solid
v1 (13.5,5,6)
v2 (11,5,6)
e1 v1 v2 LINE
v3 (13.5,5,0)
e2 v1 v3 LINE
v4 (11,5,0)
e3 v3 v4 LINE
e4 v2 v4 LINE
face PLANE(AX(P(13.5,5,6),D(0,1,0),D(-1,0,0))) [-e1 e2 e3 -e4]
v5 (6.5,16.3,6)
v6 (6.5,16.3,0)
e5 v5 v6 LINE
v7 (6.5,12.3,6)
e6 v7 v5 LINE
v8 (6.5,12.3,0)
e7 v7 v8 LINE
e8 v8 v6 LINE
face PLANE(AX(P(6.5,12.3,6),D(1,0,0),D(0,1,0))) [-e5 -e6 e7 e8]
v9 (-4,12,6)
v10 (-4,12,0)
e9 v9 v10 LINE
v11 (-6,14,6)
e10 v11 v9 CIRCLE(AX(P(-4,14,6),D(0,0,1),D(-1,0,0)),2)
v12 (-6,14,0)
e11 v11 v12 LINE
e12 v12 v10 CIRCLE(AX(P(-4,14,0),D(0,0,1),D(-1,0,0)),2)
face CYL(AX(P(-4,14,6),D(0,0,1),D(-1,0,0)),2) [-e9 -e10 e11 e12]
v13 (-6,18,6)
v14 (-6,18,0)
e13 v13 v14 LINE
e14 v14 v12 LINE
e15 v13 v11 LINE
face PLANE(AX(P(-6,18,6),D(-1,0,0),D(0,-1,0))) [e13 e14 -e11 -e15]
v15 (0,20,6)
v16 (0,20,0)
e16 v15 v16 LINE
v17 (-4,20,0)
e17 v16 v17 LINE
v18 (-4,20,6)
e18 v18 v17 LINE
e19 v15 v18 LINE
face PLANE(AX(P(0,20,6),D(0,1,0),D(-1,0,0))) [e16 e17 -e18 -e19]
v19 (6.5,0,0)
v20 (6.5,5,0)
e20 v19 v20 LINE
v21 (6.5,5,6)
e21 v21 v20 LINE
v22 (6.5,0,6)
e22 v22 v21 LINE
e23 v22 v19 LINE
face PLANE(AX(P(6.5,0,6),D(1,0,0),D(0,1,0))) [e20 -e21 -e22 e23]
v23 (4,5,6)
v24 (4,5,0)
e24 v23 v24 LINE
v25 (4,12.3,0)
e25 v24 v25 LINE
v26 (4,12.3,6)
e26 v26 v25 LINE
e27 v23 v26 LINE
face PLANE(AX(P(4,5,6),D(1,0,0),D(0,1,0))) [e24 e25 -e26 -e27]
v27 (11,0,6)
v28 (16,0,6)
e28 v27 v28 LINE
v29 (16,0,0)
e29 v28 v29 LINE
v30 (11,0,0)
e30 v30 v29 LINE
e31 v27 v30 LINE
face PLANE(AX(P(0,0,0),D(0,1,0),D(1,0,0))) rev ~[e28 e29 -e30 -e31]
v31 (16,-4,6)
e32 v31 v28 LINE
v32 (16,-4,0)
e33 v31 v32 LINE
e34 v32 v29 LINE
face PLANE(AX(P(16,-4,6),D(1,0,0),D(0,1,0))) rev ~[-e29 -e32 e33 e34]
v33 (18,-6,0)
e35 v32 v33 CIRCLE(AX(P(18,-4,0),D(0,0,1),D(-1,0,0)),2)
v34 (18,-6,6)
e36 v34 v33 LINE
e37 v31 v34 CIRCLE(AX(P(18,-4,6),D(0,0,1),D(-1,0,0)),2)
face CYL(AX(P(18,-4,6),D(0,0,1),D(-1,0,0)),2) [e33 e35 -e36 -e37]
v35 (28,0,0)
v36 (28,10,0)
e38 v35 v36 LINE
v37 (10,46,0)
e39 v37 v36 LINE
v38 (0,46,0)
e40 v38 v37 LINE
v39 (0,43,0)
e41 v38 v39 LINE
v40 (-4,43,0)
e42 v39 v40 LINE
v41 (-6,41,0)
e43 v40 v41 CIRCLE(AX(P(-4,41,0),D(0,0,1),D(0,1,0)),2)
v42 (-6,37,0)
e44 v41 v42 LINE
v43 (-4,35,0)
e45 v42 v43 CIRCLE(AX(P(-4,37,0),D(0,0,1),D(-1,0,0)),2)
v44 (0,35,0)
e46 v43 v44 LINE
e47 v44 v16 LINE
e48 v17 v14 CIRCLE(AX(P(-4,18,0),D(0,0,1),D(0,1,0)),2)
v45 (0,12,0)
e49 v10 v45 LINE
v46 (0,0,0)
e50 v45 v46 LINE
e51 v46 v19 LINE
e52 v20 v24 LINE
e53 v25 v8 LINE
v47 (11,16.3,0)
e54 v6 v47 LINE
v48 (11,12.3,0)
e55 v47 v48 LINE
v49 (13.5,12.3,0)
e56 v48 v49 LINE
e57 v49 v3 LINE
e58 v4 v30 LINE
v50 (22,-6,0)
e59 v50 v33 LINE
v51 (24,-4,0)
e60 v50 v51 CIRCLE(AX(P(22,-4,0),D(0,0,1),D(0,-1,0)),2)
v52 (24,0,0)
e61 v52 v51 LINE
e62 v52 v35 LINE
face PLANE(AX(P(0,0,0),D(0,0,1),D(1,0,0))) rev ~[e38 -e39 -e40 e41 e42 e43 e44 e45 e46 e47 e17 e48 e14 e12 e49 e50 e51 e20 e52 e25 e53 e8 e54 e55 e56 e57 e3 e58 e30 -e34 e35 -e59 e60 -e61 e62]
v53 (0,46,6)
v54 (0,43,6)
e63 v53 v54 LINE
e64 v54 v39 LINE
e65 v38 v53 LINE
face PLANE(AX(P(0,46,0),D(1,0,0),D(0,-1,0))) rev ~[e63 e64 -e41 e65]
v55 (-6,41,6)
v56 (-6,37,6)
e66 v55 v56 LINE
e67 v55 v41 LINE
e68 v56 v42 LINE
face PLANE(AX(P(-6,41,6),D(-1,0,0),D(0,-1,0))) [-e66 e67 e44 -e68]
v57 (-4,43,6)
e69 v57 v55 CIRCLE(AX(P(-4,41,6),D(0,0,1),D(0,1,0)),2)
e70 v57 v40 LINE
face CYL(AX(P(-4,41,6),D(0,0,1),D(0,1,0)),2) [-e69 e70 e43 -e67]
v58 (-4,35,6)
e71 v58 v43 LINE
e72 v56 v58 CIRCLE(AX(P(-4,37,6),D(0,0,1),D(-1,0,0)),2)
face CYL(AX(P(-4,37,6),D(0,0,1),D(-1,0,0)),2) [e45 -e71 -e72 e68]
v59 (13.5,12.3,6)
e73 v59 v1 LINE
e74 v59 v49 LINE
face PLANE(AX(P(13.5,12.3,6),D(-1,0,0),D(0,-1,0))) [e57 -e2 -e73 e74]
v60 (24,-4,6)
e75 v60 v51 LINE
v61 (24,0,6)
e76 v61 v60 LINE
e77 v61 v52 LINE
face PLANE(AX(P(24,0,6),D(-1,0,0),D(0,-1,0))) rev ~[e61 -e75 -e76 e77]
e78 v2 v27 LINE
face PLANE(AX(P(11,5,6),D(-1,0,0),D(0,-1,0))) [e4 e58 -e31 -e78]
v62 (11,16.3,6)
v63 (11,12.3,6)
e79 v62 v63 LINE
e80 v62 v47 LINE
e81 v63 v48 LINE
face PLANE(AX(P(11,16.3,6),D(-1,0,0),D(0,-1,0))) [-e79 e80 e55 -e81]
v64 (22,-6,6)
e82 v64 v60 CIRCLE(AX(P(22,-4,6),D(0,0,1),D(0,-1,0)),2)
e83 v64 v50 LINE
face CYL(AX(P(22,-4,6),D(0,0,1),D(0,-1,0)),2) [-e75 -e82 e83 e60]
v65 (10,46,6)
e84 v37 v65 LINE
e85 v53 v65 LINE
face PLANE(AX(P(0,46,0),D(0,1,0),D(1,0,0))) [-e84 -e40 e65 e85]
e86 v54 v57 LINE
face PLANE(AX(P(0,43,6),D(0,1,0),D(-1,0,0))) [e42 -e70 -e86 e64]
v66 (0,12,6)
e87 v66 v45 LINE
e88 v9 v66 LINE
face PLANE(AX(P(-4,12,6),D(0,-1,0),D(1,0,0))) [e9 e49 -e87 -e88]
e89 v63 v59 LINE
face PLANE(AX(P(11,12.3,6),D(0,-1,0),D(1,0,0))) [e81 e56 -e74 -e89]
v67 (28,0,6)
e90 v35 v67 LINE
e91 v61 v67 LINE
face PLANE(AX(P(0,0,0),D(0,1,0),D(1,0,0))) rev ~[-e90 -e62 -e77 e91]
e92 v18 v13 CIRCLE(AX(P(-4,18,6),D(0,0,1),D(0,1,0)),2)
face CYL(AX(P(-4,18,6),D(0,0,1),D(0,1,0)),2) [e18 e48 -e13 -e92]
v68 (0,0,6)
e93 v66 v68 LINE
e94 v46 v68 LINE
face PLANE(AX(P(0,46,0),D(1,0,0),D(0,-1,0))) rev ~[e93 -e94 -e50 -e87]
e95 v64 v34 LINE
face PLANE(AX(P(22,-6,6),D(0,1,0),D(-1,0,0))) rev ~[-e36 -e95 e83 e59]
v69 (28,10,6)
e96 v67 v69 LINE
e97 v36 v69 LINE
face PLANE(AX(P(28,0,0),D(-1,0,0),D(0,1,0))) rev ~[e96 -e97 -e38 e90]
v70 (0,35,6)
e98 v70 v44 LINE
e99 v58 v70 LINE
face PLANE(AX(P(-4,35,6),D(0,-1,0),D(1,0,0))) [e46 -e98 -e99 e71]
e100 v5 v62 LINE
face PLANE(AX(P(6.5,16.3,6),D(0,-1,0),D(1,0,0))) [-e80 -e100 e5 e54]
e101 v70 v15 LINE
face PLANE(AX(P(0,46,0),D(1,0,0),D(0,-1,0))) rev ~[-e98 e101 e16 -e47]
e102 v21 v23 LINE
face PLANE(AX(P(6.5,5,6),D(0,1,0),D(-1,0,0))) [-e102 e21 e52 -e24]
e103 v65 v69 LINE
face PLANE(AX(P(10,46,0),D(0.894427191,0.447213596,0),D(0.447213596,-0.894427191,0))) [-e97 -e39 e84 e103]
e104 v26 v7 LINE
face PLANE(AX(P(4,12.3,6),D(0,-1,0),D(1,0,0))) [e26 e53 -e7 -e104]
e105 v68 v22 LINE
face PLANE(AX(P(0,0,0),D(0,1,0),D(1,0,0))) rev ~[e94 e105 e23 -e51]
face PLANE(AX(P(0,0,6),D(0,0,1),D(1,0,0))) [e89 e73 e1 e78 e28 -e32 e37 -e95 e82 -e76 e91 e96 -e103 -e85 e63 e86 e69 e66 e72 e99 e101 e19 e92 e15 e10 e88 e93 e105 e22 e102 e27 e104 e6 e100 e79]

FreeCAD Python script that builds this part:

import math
import FreeCAD as App
import Part
import Sketcher

V = App.Vector
Q = App.Units.Quantity


def add_polygon(sketch, points):
    """Adds a closed chain of lines whose ends are joined by coincident constraints."""
    first, n = sketch.GeometryCount, len(points)
    for a, b in zip(points, points[1:] + points[:1]):
        sketch.addGeometry(Part.LineSegment(App.Vector(*a, 0), App.Vector(*b, 0)), False)
    for i in range(n):
        sketch.addConstraint(Sketcher.Constraint("Coincident", first + i, 2, first + (i + 1) % n, 1))

doc = App.newDocument("Part")
body = doc.addObject("PartDesign::Body", "Body")

# Sketch on XY plane
sketch1 = body.newObject("Sketcher::SketchObject", "Sketch")
sketch1.AttachmentSupport = (doc.getObject("XY_Plane"), [""])
sketch1.MapMode = "FlatFace"
add_polygon(sketch1, [(10, 46), (0, 46), (0, 0), (28, 0), (28, 10)])  # lines 0-4
sketch1.addConstraint([
    Sketcher.Constraint("Horizontal", 0),
    Sketcher.Constraint("Vertical", 1),
    Sketcher.Constraint("Horizontal", 2),
    Sketcher.Constraint("Vertical", 3),
    Sketcher.Constraint("Coincident", 1, 2, -1, 1),
    Sketcher.Constraint("Equal", 0, 3),
    Sketcher.Constraint("DistanceX", 0, 2, 0, 1, Q("10 mm")),
    Sketcher.Constraint("DistanceX", 2, 1, 2, 2, Q("28 mm")),
    Sketcher.Constraint("DistanceY", 1, 2, 1, 1, Q("46 mm")),
])
pad1 = body.newObject("PartDesign::Pad", "Pad")
pad1.Profile = sketch1
pad1.Length = 6

# Sketch on XY plane
sketch2 = body.newObject("Sketcher::SketchObject", "Sketch001")
sketch2.AttachmentSupport = (doc.getObject("XY_Plane"), [""])
sketch2.MapMode = "FlatFace"
sketch2.AttachmentOffset = App.Placement(V(0, 0, 6), App.Rotation())
add_polygon(sketch2, [(6.5, 5), (6.5, 0), (11, 0), (11, 5), (13.5, 5), (13.5, 12.3), (11, 12.3), (11, 16.3), (6.5, 16.3), (6.5, 12.3), (4, 12.3), (4, 5)])  # lines 0-11
sketch2.addConstraint([
    Sketcher.Constraint("Vertical", 0),
    Sketcher.Constraint("Horizontal", 1),
    Sketcher.Constraint("Vertical", 2),
    Sketcher.Constraint("Horizontal", 3),
    Sketcher.Constraint("Vertical", 4),
    Sketcher.Constraint("Horizontal", 5),
    Sketcher.Constraint("Vertical", 6),
    Sketcher.Constraint("Horizontal", 7),
    Sketcher.Constraint("Vertical", 8),
    Sketcher.Constraint("Horizontal", 9),
    Sketcher.Constraint("Vertical", 10),
    Sketcher.Constraint("Horizontal", 11),
    Sketcher.Constraint("PointOnObject", 0, 2, -1),
    Sketcher.Constraint("Horizontal", 5, 2, 8, 2),
    Sketcher.Constraint("Horizontal", 3, 2, 10, 2),
    Sketcher.Constraint("Vertical", 2, 2, 5, 2),
    Sketcher.Constraint("Vertical", 0, 2, 7, 2),
    Sketcher.Constraint("Equal", 5, 9),
    Sketcher.Constraint("DistanceY", 0, 2, 0, 1, Q("5 mm")),
    Sketcher.Constraint("DistanceY", 6, 1, 6, 2, Q("4 mm")),
    Sketcher.Constraint("DistanceX", 1, 1, 1, 2, Q("4.5 mm")),
    Sketcher.Constraint("DistanceX", 3, 1, 3, 2, Q("2.5 mm")),
    Sketcher.Constraint("DistanceY", 4, 1, 4, 2, Q("7.3 mm")),
    Sketcher.Constraint("DistanceX", -1, 1, 9, 2, Q("4 mm")),
])
pocket1 = body.newObject("PartDesign::Pocket", "Pocket")
pocket1.Profile = sketch2
pocket1.Type = "ThroughAll"

# Sketch on XY plane
sketch3 = body.newObject("Sketcher::SketchObject", "Sketch002")
sketch3.AttachmentSupport = (doc.getObject("XY_Plane"), [""])
sketch3.MapMode = "FlatFace"
sketch3.AttachmentOffset = App.Placement(V(0, 0, 6), App.Rotation())
sketch3.addGeometry([
    Part.LineSegment(V(24, 0, 0), V(16, 0, 0)),  # 0
    Part.LineSegment(V(16, 0, 0), V(16, -4, 0)),  # 1
    Part.ArcOfCircle(Part.Circle(V(18, -4, 0), V(0, 0, 1), 2), math.radians(180), math.radians(270)),  # 2
    Part.LineSegment(V(18, -6, 0), V(22, -6, 0)),  # 3
    Part.ArcOfCircle(Part.Circle(V(22, -4, 0), V(0, 0, 1), 2), math.radians(-90), math.radians(0)),  # 4
    Part.LineSegment(V(24, -4, 0), V(24, 0, 0)),  # 5
    Part.LineSegment(V(0, 12, 0), V(0, 20, 0)),  # 6
    Part.LineSegment(V(0, 20, 0), V(-4, 20, 0)),  # 7
    Part.ArcOfCircle(Part.Circle(V(-4, 18, 0), V(0, 0, 1), 2), math.radians(90), math.radians(180)),  # 8
    Part.LineSegment(V(-6, 18, 0), V(-6, 14, 0)),  # 9
    Part.ArcOfCircle(Part.Circle(V(-4, 14, 0), V(0, 0, 1), 2), math.radians(180), math.radians(270)),  # 10
    Part.LineSegment(V(-4, 12, 0), V(0, 12, 0)),  # 11
    Part.LineSegment(V(0, 35, 0), V(0, 43, 0)),  # 12
    Part.LineSegment(V(0, 43, 0), V(-4, 43, 0)),  # 13
    Part.ArcOfCircle(Part.Circle(V(-4, 41, 0), V(0, 0, 1), 2), math.radians(90), math.radians(180)),  # 14
    Part.LineSegment(V(-6, 41, 0), V(-6, 37, 0)),  # 15
    Part.ArcOfCircle(Part.Circle(V(-4, 37, 0), V(0, 0, 1), 2), math.radians(180), math.radians(270)),  # 16
    Part.LineSegment(V(-4, 35, 0), V(0, 35, 0)),  # 17
], False)
sketch3.addConstraint([
    Sketcher.Constraint("Coincident", 0, 2, 1, 1),
    Sketcher.Constraint("Tangent", 1, 2, 2, 1),
    Sketcher.Constraint("Tangent", 2, 2, 3, 1),
    Sketcher.Constraint("Tangent", 3, 2, 4, 1),
    Sketcher.Constraint("Tangent", 4, 2, 5, 1),
    Sketcher.Constraint("Coincident", 5, 2, 0, 1),
    Sketcher.Constraint("Coincident", 6, 2, 7, 1),
    Sketcher.Constraint("Tangent", 7, 2, 8, 1),
    Sketcher.Constraint("Tangent", 8, 2, 9, 1),
    Sketcher.Constraint("Tangent", 9, 2, 10, 1),
    Sketcher.Constraint("Tangent", 10, 2, 11, 1),
    Sketcher.Constraint("Coincident", 11, 2, 6, 1),
    Sketcher.Constraint("Coincident", 12, 2, 13, 1),
    Sketcher.Constraint("Tangent", 13, 2, 14, 1),
    Sketcher.Constraint("Tangent", 14, 2, 15, 1),
    Sketcher.Constraint("Tangent", 15, 2, 16, 1),
    Sketcher.Constraint("Tangent", 16, 2, 17, 1),
    Sketcher.Constraint("Coincident", 17, 2, 12, 1),
    Sketcher.Constraint("Horizontal", 0),
    Sketcher.Constraint("Vertical", 1),
    Sketcher.Constraint("Horizontal", 3),
    Sketcher.Constraint("Vertical", 5),
    Sketcher.Constraint("Vertical", 6),
    Sketcher.Constraint("Horizontal", 7),
    Sketcher.Constraint("Vertical", 9),
    Sketcher.Constraint("Horizontal", 11),
    Sketcher.Constraint("Vertical", 12),
    Sketcher.Constraint("Horizontal", 13),
    Sketcher.Constraint("Vertical", 15),
    Sketcher.Constraint("Horizontal", 17),
    Sketcher.Constraint("Equal", 2, 4),
    Sketcher.Constraint("Equal", 4, 8),
    Sketcher.Constraint("Equal", 8, 10),
    Sketcher.Constraint("Equal", 10, 14),
    Sketcher.Constraint("Equal", 14, 16),
    Sketcher.Constraint("PointOnObject", 0, 2, -1),
    Sketcher.Constraint("PointOnObject", 6, 2, -2),
    Sketcher.Constraint("PointOnObject", 12, 2, -2),
    Sketcher.Constraint("Vertical", 10, 3, 14, 3),
    Sketcher.Constraint("Equal", 3, 7),
    Sketcher.Constraint("Equal", 17, 1),
    Sketcher.Constraint("Equal", 0, 6),
    Sketcher.Constraint("Equal", 6, 12),
    Sketcher.Constraint("Radius", 2, Q("2 mm")),
    Sketcher.Constraint("DistanceX", 0, 2, 0, 1, Q("8 mm")),
    Sketcher.Constraint("DistanceY", -1, 1, 10, 2, Q("12 mm")),
    Sketcher.Constraint("DistanceX", -1, 1, 2, 3, Q("18 mm")),
    Sketcher.Constraint("DistanceY", -1, 1, 14, 3, Q("41 mm")),
])
pad2 = body.newObject("PartDesign::Pad", "Pad001")
pad2.Profile = sketch3
pad2.Length = 6
pad2.Reversed = True

doc.recompute()
